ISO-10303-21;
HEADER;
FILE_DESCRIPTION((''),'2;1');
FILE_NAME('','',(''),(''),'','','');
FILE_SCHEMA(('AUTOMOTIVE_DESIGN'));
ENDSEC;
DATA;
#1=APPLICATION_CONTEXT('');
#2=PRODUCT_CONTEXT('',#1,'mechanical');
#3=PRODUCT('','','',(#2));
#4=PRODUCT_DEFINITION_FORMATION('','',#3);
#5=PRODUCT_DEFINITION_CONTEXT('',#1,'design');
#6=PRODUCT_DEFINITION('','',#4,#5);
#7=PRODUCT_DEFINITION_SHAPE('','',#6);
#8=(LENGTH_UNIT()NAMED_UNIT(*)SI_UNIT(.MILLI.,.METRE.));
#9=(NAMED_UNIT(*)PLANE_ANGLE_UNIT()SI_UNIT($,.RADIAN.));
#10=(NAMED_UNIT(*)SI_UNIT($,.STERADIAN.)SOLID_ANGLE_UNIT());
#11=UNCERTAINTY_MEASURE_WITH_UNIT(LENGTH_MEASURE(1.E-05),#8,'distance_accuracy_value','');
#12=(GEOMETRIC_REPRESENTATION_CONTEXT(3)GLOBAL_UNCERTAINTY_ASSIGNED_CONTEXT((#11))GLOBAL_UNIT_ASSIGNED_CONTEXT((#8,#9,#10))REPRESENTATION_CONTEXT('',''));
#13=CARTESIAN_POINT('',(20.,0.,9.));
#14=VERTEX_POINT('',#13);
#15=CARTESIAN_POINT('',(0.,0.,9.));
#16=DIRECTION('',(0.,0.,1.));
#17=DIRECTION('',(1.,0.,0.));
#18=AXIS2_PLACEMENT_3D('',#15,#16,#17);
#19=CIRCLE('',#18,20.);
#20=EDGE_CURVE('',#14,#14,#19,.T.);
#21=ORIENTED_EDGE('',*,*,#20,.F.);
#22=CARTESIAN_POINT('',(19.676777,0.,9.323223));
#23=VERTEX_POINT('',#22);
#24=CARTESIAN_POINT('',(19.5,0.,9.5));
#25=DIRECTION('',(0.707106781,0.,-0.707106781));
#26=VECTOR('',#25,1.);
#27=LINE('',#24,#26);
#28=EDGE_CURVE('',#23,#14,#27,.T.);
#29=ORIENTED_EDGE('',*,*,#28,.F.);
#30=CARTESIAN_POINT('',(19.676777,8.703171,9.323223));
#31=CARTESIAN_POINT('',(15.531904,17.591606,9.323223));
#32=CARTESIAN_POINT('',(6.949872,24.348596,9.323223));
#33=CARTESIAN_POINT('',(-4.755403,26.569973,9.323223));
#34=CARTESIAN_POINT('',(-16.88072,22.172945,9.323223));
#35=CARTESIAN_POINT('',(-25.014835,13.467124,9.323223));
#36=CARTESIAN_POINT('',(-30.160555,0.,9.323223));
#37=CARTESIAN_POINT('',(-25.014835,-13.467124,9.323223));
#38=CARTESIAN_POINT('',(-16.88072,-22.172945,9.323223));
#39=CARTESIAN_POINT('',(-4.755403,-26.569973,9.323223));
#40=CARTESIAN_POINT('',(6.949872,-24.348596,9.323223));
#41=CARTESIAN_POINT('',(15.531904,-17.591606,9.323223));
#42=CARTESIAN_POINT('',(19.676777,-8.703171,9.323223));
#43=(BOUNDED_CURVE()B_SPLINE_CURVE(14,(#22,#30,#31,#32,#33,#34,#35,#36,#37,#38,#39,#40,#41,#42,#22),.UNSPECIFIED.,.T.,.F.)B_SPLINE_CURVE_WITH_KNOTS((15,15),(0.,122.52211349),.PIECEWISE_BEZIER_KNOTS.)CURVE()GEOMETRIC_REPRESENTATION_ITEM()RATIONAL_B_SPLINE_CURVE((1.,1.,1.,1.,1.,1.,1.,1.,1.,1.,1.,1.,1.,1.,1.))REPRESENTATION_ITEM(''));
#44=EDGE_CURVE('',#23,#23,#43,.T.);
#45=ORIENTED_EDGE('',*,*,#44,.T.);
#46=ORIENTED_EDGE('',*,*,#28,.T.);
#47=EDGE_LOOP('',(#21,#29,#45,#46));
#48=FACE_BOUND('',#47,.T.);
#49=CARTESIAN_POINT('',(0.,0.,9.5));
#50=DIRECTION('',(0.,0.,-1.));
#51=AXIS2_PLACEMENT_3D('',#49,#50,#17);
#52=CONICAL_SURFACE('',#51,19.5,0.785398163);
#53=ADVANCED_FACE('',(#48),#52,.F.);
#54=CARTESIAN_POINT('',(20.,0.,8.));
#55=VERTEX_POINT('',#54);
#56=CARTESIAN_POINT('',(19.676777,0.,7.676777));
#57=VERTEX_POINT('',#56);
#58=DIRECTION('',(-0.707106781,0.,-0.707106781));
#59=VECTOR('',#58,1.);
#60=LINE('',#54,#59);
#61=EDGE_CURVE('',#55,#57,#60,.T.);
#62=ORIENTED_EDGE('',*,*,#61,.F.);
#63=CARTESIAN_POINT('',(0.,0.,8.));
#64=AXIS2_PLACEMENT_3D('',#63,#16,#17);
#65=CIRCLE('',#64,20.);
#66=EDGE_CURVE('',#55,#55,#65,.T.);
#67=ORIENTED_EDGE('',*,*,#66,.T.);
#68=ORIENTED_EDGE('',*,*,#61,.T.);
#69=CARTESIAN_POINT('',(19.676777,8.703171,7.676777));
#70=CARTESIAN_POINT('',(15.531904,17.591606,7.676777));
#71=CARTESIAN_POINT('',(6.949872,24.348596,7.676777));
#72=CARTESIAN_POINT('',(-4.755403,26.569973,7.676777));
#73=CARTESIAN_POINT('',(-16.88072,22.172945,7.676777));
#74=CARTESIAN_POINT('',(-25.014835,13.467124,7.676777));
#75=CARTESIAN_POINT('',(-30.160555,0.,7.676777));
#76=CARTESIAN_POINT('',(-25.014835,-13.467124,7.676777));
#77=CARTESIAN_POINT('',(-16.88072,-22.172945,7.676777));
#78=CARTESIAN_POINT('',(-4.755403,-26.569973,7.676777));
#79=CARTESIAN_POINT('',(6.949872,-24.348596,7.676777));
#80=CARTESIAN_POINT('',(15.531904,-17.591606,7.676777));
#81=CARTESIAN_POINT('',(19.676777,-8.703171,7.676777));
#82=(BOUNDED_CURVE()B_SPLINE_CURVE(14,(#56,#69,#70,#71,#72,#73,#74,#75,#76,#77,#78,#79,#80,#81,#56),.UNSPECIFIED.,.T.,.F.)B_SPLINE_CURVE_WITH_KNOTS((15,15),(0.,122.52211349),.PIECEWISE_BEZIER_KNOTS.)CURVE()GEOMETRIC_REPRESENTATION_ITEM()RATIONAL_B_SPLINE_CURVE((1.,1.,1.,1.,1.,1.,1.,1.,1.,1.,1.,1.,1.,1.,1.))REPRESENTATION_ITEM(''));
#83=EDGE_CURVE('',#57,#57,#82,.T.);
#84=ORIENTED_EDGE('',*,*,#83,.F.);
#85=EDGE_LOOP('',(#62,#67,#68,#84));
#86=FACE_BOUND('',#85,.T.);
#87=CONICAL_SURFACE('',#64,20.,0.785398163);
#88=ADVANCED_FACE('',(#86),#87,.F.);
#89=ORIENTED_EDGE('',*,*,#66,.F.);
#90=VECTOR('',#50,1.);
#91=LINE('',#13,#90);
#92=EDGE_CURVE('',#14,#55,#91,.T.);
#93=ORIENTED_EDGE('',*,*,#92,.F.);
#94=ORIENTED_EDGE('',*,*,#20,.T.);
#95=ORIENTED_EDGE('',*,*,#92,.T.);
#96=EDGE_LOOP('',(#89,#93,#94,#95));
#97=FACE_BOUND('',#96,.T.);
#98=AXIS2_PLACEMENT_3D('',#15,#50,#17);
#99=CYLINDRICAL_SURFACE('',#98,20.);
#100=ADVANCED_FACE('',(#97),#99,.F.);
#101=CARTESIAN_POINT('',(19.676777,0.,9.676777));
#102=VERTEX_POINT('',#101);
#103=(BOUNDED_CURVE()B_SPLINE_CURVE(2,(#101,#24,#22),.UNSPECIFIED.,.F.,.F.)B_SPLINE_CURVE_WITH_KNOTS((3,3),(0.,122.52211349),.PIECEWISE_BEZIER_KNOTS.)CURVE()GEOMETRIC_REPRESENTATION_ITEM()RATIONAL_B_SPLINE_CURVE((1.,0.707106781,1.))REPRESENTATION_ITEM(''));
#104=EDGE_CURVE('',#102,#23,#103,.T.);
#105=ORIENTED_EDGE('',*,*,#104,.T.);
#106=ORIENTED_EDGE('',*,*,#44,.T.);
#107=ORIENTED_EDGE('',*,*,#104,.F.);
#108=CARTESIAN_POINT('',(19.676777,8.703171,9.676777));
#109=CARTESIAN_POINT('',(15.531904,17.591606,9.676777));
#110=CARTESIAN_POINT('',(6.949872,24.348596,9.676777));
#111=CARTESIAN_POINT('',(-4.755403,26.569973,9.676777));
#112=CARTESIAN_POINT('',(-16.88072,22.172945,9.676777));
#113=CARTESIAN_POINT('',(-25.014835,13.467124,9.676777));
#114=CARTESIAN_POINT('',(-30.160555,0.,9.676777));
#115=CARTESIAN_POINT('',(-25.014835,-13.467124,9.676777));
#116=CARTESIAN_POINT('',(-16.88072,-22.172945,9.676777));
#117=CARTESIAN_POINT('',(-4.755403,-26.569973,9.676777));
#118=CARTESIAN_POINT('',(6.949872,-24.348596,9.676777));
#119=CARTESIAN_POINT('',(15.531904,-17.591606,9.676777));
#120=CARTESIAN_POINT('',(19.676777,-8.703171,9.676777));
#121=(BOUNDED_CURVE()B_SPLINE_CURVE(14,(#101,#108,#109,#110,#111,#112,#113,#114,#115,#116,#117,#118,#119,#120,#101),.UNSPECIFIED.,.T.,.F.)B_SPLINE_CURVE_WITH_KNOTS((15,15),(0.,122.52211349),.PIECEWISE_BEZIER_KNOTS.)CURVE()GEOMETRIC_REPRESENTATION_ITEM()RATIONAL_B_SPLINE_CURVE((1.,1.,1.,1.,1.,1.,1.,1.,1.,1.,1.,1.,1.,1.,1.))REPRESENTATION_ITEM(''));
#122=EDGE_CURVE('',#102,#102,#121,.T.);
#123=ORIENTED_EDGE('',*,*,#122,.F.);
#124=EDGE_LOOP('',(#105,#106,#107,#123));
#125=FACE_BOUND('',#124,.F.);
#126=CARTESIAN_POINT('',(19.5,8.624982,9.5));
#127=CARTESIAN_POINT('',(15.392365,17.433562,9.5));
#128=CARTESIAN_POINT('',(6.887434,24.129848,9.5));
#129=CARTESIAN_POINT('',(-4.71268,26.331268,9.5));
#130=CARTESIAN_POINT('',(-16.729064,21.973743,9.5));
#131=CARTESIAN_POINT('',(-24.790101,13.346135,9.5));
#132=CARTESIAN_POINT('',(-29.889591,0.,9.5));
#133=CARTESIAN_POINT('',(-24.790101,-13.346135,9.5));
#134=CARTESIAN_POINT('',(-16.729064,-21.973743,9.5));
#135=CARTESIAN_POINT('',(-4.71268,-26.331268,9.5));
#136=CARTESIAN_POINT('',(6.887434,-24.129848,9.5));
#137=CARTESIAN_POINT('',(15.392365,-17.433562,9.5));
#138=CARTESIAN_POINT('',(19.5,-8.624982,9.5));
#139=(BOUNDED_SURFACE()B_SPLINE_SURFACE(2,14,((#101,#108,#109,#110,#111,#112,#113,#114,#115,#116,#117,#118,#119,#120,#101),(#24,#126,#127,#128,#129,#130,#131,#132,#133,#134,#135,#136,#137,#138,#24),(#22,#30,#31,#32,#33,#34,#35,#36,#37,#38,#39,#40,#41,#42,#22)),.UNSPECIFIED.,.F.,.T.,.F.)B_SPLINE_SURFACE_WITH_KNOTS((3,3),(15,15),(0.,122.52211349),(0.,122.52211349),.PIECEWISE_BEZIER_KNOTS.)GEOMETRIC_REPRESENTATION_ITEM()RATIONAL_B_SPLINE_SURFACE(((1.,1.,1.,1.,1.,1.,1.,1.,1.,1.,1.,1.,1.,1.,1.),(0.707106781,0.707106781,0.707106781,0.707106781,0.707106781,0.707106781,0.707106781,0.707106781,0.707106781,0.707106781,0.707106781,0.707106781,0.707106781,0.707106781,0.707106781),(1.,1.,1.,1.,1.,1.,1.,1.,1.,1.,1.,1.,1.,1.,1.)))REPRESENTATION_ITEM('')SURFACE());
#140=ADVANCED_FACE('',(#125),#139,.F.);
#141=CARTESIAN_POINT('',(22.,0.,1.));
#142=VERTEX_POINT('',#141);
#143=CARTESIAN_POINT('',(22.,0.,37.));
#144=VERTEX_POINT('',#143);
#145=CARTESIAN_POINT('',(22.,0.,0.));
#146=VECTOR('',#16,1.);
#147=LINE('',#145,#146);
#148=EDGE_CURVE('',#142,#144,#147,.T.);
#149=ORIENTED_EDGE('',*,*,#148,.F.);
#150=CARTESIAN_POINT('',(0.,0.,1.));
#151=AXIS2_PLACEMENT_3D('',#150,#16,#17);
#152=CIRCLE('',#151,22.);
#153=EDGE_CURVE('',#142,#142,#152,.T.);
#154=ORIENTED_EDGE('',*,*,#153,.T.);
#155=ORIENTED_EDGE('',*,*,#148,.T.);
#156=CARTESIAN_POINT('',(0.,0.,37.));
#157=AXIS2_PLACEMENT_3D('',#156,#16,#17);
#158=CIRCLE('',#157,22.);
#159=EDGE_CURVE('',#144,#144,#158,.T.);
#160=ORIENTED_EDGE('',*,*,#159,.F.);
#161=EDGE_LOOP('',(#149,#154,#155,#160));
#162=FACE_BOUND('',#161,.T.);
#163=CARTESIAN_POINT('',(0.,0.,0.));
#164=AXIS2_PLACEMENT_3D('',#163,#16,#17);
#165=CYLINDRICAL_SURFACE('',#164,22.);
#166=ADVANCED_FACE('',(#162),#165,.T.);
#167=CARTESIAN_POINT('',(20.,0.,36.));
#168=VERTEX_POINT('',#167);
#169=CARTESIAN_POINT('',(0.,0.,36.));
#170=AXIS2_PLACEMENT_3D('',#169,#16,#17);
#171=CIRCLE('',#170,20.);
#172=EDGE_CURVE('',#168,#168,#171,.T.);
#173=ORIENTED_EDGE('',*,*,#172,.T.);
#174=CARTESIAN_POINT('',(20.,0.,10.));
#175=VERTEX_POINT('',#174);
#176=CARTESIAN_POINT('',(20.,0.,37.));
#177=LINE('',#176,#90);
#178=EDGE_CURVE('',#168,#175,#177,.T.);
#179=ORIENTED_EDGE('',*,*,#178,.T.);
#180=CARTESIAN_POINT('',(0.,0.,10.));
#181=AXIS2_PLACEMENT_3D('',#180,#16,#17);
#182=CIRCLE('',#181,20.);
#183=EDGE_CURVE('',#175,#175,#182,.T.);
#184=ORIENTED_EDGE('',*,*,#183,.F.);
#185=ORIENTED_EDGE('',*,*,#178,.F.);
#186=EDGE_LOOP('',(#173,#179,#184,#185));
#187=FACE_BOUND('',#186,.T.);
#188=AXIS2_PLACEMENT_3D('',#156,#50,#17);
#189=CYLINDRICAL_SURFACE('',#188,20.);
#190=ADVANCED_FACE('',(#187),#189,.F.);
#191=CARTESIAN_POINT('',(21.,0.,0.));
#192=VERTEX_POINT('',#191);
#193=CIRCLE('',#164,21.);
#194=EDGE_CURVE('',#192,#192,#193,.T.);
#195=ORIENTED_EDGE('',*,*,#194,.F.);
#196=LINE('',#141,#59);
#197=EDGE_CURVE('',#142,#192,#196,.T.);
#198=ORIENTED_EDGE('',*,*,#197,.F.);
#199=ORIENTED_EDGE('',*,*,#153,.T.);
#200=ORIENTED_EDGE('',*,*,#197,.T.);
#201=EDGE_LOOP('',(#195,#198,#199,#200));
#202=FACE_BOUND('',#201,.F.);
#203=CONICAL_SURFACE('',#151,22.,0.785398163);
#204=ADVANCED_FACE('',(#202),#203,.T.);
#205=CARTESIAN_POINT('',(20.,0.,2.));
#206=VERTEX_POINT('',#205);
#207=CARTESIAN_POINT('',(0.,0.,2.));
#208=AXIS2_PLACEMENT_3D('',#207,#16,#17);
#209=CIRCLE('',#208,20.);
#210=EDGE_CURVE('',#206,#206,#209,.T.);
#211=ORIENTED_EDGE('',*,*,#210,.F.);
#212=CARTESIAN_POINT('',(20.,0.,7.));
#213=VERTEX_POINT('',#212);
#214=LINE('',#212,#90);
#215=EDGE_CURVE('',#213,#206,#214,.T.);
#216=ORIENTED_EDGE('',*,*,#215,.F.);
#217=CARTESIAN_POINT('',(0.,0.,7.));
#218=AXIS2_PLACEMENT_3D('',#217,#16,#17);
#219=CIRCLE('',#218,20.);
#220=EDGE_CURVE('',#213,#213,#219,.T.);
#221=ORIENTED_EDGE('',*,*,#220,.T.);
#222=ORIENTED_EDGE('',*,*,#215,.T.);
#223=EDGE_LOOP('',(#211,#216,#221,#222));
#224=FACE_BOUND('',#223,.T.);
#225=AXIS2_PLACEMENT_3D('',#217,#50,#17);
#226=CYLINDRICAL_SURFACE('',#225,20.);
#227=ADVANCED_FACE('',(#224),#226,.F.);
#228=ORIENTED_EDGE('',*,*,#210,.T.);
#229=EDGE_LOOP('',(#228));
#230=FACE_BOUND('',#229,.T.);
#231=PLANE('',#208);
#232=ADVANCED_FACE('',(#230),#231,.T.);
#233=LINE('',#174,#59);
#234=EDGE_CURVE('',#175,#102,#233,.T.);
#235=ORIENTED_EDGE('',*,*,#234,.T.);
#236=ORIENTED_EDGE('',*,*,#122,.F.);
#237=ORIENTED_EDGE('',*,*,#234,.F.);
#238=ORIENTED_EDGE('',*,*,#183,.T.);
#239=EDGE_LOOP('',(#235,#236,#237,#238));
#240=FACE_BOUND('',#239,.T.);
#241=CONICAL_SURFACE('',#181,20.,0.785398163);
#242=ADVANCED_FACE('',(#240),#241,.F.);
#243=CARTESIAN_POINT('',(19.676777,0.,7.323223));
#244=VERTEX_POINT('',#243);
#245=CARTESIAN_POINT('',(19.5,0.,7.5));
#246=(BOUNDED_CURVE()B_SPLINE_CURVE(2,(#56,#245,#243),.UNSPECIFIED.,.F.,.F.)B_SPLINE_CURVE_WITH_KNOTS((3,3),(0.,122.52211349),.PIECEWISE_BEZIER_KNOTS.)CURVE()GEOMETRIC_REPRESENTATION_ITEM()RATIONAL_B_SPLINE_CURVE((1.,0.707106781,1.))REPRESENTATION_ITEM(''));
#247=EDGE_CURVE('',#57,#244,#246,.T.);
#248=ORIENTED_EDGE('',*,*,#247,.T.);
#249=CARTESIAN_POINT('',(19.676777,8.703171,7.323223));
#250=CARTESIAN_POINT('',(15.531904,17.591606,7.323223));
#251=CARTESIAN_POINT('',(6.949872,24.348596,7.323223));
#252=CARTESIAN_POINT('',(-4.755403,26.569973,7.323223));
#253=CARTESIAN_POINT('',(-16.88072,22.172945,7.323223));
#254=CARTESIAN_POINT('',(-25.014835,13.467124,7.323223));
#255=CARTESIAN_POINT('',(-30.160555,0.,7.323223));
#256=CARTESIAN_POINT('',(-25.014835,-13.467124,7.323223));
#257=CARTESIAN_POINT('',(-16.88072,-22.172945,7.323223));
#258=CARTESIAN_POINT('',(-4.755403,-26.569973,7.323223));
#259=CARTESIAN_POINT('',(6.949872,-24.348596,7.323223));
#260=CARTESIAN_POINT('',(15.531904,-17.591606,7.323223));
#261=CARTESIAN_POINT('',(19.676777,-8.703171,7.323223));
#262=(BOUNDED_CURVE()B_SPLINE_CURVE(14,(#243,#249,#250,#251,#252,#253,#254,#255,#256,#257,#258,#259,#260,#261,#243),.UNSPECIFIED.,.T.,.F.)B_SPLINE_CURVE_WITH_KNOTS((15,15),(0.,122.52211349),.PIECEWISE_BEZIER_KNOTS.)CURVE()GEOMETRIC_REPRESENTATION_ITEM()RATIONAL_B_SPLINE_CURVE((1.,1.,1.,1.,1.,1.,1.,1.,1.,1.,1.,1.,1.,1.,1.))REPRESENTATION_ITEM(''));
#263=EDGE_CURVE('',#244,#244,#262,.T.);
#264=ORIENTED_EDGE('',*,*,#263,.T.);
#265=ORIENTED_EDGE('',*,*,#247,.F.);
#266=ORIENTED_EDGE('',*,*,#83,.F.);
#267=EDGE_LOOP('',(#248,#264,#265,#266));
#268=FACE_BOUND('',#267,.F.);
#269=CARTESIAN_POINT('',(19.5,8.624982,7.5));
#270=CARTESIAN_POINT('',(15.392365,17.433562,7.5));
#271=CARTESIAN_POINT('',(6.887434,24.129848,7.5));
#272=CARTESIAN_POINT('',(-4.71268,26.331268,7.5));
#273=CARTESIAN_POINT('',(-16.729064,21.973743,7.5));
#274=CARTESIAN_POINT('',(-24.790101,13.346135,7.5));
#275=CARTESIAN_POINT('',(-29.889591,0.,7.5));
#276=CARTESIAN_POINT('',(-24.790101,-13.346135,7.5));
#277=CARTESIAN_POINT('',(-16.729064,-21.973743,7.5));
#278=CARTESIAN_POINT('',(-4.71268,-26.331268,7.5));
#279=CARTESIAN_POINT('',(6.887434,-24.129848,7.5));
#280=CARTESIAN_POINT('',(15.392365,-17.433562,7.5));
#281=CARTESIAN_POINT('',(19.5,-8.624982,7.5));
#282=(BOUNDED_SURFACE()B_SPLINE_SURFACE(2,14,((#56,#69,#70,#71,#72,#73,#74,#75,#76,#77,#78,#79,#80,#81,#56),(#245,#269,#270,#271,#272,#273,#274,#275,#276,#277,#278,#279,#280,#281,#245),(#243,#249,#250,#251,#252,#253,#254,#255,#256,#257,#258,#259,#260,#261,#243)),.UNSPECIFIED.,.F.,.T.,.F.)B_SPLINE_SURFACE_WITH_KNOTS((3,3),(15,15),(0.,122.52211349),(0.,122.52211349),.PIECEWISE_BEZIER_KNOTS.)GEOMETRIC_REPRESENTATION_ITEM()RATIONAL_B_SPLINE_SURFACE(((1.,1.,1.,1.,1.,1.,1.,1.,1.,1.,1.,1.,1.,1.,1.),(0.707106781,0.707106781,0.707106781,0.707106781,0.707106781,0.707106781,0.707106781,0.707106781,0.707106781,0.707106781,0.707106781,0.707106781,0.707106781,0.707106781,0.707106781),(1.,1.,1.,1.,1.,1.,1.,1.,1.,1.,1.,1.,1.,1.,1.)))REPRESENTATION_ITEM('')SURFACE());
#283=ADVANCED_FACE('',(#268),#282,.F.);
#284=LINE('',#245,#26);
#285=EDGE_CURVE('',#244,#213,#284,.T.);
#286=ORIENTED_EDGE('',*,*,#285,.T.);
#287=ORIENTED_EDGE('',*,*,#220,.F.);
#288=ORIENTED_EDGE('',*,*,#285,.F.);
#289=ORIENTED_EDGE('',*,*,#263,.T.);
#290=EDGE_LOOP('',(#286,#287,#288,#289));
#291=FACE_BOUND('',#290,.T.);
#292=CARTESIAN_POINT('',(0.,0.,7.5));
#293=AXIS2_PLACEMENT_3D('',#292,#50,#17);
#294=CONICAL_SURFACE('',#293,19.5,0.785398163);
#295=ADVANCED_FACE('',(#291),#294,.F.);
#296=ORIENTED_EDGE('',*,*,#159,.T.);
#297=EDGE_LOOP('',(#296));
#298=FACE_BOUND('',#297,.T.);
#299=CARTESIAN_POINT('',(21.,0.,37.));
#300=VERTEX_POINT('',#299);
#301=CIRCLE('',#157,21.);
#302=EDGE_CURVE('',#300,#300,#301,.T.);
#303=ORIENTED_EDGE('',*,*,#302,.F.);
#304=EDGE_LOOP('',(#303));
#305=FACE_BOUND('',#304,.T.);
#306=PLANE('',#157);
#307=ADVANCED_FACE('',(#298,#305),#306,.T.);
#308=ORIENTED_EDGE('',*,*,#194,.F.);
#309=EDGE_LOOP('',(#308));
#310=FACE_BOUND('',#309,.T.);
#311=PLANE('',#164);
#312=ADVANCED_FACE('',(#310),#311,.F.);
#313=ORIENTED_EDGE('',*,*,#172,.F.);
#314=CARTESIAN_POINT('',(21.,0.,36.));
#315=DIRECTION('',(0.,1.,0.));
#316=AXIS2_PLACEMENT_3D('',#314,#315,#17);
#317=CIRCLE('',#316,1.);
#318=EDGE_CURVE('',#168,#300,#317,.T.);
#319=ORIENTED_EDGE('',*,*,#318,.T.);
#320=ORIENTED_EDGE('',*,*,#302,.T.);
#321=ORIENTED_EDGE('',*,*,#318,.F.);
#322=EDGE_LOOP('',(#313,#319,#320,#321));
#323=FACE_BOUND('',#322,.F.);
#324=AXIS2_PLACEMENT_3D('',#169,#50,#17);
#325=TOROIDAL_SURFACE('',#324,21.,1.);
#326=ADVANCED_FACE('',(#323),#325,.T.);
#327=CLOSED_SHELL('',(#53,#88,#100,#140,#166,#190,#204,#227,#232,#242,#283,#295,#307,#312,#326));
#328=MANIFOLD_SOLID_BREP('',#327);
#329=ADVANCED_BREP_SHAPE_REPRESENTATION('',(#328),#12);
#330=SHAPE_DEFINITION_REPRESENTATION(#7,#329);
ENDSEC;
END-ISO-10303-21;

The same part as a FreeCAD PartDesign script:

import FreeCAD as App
import Part
import Sketcher
Q = App.Units.Quantity


def edges_at(feature, points):
    """Names of the edges that pass closest to the given points."""
    edges = feature.Shape.Edges
    near = lambda p: min(range(len(edges)), key=lambda i: edges[i].distToShape(Part.Vertex(*p))[0])
    return sorted({f"Edge{near(p) + 1}" for p in points})

doc = App.newDocument("Part")
body = doc.addObject("PartDesign::Body", "Body")

sketch1 = body.newObject("Sketcher::SketchObject", "Sketch")
sketch1.AttachmentSupport = (doc.getObject("XZ_Plane"), [""])
sketch1.MapMode = "FlatFace"
sketch1.addGeometry([
    Part.LineSegment(App.Vector(22, 0, 0), App.Vector(22, 37, 0)),
    Part.LineSegment(App.Vector(22, 37, 0), App.Vector(20, 37, 0)),
    Part.LineSegment(App.Vector(20, 37, 0), App.Vector(20, 10, 0)),
    Part.LineSegment(App.Vector(20, 10, 0), App.Vector(19.5, 9.5, 0)),
    Part.LineSegment(App.Vector(19.5, 9.5, 0), App.Vector(20, 9, 0)),
    Part.LineSegment(App.Vector(20, 9, 0), App.Vector(20, 8, 0)),
    Part.LineSegment(App.Vector(20, 8, 0), App.Vector(19.5, 7.5, 0)),
    Part.LineSegment(App.Vector(19.5, 7.5, 0), App.Vector(20, 7, 0)),
    Part.LineSegment(App.Vector(20, 7, 0), App.Vector(20, 2, 0)),
    Part.LineSegment(App.Vector(20, 2, 0), App.Vector(0, 2, 0)),
    Part.LineSegment(App.Vector(0, 2, 0), App.Vector(0, 0, 0)),
    Part.LineSegment(App.Vector(0, 0, 0), App.Vector(22, 0, 0)),
], False)
sketch1.addConstraint([
    Sketcher.Constraint("Coincident", 0, 2, 1, 1),
    Sketcher.Constraint("Coincident", 1, 2, 2, 1),
    Sketcher.Constraint("Coincident", 2, 2, 3, 1),
    Sketcher.Constraint("Coincident", 3, 2, 4, 1),
    Sketcher.Constraint("Coincident", 4, 2, 5, 1),
    Sketcher.Constraint("Coincident", 5, 2, 6, 1),
    Sketcher.Constraint("Coincident", 6, 2, 7, 1),
    Sketcher.Constraint("Coincident", 7, 2, 8, 1),
    Sketcher.Constraint("Coincident", 8, 2, 9, 1),
    Sketcher.Constraint("Coincident", 9, 2, 10, 1),
    Sketcher.Constraint("Coincident", 10, 2, 11, 1),
    Sketcher.Constraint("Coincident", 11, 2, 0, 1),
    Sketcher.Constraint("Vertical", 0),
    Sketcher.Constraint("Horizontal", 1),
    Sketcher.Constraint("Vertical", 2),
    Sketcher.Constraint("Vertical", 5),
    Sketcher.Constraint("Vertical", 8),
    Sketcher.Constraint("Horizontal", 9),
    Sketcher.Constraint("Vertical", 10),
    Sketcher.Constraint("Horizontal", 11),
    Sketcher.Constraint("Coincident", 10, 2, -1, 1),
    Sketcher.Constraint("Perpendicular", 3, 4),
    Sketcher.Constraint("Perpendicular", 4, 6),
    Sketcher.Constraint("Perpendicular", 6, 7),
    Sketcher.Constraint("Vertical", 2, 2, 4, 2),
    Sketcher.Constraint("Vertical", 3, 2, 6, 2),
    Sketcher.Constraint("Vertical", 5, 2, 7, 2),
    Sketcher.Constraint("Equal", 1, 10),
    Sketcher.Constraint("Equal", 3, 4),
    Sketcher.Constraint("DistanceX", 1, 2, 1, 1, Q("2 mm")),
    Sketcher.Constraint("DistanceX", 9, 2, 9, 1, Q("20 mm")),
    Sketcher.Constraint("DistanceY", 0, 1, 0, 2, Q("37 mm")),
    Sketcher.Constraint("DistanceY", 2, 2, 2, 1, Q("27 mm")),
    Sketcher.Constraint("DistanceY", 5, 2, 5, 1, Q("1 mm")),
    Sketcher.Constraint("DistanceY", 8, 2, 8, 1, Q("5 mm")),
])
revolution = body.newObject("PartDesign::Revolution", "Revolution")
revolution.Profile = sketch1
revolution.ReferenceAxis = (sketch1, ["V_Axis"])
revolution.Angle = 360
doc.recompute()

fillet = body.newObject("PartDesign::Fillet", "Fillet")
fillet.Base = (revolution, edges_at(revolution, [(-19.5, 0, 7.5), (-19.5, 0, 9.5)]))
fillet.Radius = 0.25
doc.recompute()

fillet2 = body.newObject("PartDesign::Fillet", "Fillet001")
fillet2.Base = (fillet, edges_at(fillet, [(-20, 0, 37)]))
fillet2.Radius = 1
doc.recompute()

chamfer = body.newObject("PartDesign::Chamfer", "Chamfer")
chamfer.Base = (fillet2, edges_at(fillet2, [(-22, 0, 0)]))
chamfer.Size = 1

doc.recompute()
